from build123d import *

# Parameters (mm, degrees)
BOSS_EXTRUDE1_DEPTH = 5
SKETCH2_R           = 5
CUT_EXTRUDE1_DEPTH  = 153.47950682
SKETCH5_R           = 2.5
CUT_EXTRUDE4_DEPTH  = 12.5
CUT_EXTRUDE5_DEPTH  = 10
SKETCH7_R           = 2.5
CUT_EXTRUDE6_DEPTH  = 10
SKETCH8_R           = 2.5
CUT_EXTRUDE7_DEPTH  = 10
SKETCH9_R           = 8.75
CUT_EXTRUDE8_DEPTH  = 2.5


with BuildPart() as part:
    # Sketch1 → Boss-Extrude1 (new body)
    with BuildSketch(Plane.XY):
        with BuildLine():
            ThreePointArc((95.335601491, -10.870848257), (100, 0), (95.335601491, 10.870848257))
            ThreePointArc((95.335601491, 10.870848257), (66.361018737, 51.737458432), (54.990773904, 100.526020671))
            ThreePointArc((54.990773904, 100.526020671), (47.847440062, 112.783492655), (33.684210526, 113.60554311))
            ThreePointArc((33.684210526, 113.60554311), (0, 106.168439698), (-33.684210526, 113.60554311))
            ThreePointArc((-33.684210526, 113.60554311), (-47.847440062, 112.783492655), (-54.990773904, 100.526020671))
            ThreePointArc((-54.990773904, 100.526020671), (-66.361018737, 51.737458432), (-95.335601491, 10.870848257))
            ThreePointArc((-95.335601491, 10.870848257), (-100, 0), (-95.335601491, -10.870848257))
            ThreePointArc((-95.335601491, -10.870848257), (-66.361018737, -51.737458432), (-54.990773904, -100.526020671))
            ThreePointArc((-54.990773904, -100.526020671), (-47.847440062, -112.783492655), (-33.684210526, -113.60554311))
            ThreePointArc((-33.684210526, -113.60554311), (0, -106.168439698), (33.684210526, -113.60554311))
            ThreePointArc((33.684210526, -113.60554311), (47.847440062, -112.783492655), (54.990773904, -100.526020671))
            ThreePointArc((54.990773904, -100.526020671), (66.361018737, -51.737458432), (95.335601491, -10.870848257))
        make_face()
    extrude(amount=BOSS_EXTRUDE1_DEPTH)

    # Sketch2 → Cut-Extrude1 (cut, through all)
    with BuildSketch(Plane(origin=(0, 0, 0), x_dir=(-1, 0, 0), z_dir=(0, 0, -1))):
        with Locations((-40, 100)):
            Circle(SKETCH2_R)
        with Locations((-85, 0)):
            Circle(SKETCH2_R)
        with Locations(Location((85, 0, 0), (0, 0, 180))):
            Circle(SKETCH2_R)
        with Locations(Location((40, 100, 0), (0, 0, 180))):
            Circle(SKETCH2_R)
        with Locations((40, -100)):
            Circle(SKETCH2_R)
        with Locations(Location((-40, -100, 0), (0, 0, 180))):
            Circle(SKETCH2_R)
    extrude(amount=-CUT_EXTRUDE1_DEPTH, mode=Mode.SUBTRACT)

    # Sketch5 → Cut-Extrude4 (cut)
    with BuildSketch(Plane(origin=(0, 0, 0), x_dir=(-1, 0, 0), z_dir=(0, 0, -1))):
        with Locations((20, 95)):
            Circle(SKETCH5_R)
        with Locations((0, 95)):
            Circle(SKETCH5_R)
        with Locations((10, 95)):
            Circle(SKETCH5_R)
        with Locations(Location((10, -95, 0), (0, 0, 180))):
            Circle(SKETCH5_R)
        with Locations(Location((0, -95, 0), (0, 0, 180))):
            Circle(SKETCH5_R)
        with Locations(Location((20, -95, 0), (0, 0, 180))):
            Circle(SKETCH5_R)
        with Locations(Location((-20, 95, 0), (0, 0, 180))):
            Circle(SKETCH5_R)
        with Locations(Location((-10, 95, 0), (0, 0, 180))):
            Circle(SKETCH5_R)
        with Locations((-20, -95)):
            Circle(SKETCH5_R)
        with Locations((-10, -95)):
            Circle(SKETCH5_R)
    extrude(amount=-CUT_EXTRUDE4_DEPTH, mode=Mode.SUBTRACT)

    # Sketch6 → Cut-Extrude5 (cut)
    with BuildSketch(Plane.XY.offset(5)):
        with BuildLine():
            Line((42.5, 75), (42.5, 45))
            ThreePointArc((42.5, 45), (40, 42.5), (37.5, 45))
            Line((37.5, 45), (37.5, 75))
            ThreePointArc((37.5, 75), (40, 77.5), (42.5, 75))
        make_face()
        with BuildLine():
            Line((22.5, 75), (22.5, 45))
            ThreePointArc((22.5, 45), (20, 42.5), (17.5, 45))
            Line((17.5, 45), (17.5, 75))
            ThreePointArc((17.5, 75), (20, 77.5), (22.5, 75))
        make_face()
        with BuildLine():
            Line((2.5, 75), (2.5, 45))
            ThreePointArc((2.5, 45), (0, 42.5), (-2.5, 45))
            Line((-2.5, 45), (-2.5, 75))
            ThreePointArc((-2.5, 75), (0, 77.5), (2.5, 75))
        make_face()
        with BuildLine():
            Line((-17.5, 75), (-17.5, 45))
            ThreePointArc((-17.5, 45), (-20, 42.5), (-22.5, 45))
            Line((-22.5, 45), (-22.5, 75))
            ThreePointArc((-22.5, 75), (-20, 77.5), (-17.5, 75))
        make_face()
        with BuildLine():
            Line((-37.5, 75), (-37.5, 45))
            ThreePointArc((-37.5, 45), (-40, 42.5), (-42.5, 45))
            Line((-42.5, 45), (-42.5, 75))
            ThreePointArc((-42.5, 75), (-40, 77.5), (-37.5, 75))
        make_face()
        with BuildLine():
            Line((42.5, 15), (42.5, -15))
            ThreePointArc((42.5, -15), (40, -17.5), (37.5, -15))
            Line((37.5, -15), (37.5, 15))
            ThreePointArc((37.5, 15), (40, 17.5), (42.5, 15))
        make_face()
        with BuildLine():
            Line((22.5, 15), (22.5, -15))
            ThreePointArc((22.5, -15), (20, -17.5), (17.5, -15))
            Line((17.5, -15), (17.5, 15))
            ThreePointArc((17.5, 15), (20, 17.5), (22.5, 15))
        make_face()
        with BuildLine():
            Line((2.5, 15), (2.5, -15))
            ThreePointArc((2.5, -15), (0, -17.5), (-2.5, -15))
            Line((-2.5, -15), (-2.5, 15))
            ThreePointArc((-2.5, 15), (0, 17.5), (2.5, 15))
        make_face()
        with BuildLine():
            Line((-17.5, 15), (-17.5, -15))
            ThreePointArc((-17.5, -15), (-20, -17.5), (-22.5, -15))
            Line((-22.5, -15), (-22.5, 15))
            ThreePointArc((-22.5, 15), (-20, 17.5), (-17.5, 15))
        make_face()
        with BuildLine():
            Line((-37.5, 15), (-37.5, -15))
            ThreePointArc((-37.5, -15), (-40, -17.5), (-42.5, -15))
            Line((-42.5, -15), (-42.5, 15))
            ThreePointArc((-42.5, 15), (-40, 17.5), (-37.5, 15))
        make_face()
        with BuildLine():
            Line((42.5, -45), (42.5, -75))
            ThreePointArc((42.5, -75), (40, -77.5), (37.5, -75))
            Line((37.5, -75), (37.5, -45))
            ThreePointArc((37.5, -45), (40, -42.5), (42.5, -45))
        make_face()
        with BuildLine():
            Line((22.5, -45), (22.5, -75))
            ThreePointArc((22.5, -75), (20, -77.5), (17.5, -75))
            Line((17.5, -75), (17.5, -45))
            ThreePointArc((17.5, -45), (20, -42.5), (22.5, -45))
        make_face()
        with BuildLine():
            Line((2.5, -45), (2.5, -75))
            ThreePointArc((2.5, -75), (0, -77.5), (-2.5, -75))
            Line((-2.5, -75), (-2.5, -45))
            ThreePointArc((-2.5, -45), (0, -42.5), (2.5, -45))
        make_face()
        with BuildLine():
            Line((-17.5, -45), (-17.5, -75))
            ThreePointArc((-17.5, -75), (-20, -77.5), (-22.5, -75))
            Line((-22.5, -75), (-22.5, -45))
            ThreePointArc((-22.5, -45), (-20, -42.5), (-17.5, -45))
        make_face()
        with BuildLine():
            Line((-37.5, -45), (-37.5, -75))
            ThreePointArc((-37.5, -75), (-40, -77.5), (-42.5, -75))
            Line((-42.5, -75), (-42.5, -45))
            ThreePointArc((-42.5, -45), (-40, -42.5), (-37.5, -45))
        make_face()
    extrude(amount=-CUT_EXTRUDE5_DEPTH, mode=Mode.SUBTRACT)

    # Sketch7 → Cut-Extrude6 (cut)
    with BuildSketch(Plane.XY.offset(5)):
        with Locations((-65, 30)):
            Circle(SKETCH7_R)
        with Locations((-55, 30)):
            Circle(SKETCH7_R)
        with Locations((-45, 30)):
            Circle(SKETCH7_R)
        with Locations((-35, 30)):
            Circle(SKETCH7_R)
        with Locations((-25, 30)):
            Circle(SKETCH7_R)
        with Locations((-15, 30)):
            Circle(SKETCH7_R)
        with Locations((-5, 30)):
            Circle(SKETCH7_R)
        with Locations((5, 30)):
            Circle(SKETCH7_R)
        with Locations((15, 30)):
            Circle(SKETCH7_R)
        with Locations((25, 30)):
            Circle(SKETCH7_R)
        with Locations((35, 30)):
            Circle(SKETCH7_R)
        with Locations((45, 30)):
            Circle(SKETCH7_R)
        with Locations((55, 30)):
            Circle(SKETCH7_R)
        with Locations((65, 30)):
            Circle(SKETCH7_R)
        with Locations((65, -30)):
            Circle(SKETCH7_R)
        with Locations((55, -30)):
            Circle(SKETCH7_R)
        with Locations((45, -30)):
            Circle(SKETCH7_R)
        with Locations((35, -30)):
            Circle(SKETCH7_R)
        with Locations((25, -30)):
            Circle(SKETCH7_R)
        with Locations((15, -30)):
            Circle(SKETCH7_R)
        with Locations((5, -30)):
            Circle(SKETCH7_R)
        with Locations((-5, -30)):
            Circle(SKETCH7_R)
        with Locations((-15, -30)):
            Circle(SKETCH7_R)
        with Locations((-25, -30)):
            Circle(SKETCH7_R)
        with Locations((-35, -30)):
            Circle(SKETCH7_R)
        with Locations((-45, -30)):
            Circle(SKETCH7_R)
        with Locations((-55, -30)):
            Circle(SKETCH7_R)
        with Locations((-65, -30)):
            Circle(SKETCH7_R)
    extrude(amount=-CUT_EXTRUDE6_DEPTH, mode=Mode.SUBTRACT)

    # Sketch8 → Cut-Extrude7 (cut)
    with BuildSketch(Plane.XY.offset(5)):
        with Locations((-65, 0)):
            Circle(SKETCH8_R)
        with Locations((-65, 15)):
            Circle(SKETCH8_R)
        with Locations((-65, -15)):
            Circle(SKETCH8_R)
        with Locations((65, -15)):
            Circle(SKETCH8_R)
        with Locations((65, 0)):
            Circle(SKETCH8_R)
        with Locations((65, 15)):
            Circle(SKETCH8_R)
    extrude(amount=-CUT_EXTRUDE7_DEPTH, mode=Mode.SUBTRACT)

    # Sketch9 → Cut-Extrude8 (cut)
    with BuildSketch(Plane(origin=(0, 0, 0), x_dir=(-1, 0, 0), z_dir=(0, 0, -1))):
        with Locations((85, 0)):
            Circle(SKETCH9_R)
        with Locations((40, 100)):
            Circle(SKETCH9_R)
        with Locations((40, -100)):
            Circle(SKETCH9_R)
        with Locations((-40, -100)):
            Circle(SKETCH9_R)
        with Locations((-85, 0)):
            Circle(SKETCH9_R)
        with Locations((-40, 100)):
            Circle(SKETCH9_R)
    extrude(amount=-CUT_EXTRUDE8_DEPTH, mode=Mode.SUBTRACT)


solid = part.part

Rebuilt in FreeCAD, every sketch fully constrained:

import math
import FreeCAD as App
import Part
import Sketcher

V = App.Vector
Q = App.Units.Quantity

doc = App.newDocument("Part")
body = doc.addObject("PartDesign::Body", "Body")

sketch1 = doc.addObject("Sketcher::SketchObject", "Sketch")
body.addObject(sketch1)
sketch1.AttachmentSupport = (doc.XY_Plane, [""])
sketch1.MapMode = "FlatFace"
sketch1.addGeometry([
    Part.ArcOfCircle(Part.Circle(V(85, 0, 0), V(0, 0, 1), 15), math.radians(-46), math.radians(46)),
    Part.ArcOfCircle(Part.Circle(V(185, 105, 0), V(0, 0, 1), 130), math.radians(-178), math.radians(-134)),
    Part.ArcOfCircle(Part.Circle(V(40, 100, 0), V(0, 0, 1), 15), math.radians(2), math.radians(115)),
    Part.ArcOfCircle(Part.Circle(V(0, 186, 0), V(0, 0, 1), 80), math.radians(-115), math.radians(-65)),
    Part.ArcOfCircle(Part.Circle(V(-40, 100, 0), V(0, 0, 1), 15), math.radians(65), math.radians(178)),
    Part.ArcOfCircle(Part.Circle(V(-185, 105, 0), V(0, 0, 1), 130), math.radians(-46), math.radians(-2)),
    Part.ArcOfCircle(Part.Circle(V(-85, 0, 0), V(0, 0, 1), 15), math.radians(134), math.radians(226)),
    Part.ArcOfCircle(Part.Circle(V(-185, -105, 0), V(0, 0, 1), 130), math.radians(2), math.radians(46)),
    Part.ArcOfCircle(Part.Circle(V(-40, -100, 0), V(0, 0, 1), 15), math.radians(-178), math.radians(-65)),
    Part.ArcOfCircle(Part.Circle(V(0, -186, 0), V(0, 0, 1), 80), math.radians(65), math.radians(115)),
    Part.ArcOfCircle(Part.Circle(V(40, -100, 0), V(0, 0, 1), 15), math.radians(-115), math.radians(-2)),
    Part.ArcOfCircle(Part.Circle(V(185, -105, 0), V(0, 0, 1), 130), math.radians(134), math.radians(178)),
], False)
sketch1.addConstraint([
    Sketcher.Constraint("Tangent", 0, 2, 1, 2),
    Sketcher.Constraint("Tangent", 1, 1, 2, 1),
    Sketcher.Constraint("Tangent", 2, 2, 3, 2),
    Sketcher.Constraint("Tangent", 3, 1, 4, 1),
    Sketcher.Constraint("Tangent", 4, 2, 5, 2),
    Sketcher.Constraint("Tangent", 5, 1, 6, 1),
    Sketcher.Constraint("Tangent", 6, 2, 7, 2),
    Sketcher.Constraint("Tangent", 7, 1, 8, 1),
    Sketcher.Constraint("Tangent", 8, 2, 9, 2),
    Sketcher.Constraint("Tangent", 9, 1, 10, 1),
    Sketcher.Constraint("Tangent", 10, 2, 11, 2),
    Sketcher.Constraint("Tangent", 11, 1, 0, 1),
    Sketcher.Constraint("Equal", 0, 2),
    Sketcher.Constraint("Equal", 2, 4),
    Sketcher.Constraint("Equal", 1, 5),
    Sketcher.Constraint("Equal", 4, 6),
    Sketcher.Constraint("Equal", 5, 7),
    Sketcher.Constraint("Equal", 6, 8),
    Sketcher.Constraint("Equal", 3, 9),
    Sketcher.Constraint("Equal", 8, 10),
    Sketcher.Constraint("Equal", 7, 11),
    Sketcher.Constraint("Symmetric", 0, 3, 6, 3, -1, 1),
    Sketcher.Constraint("Symmetric", 2, 3, 8, 3, -1, 1),
    Sketcher.Constraint("Symmetric", 4, 3, 10, 3, -1, 1),
    Sketcher.Constraint("Symmetric", 2, 3, 4, 3, -2),
    Sketcher.Constraint("PointOnObject", 0, 3, -1),
    Sketcher.Constraint("Radius", 0, Q("15 mm")),
    Sketcher.Constraint("Radius", 1, Q("130 mm")),
    Sketcher.Constraint("Radius", 3, Q("80 mm")),
    Sketcher.Constraint("DistanceX", -1, 1, 0, 3, Q("85 mm")),
    Sketcher.Constraint("DistanceX", -1, 1, 2, 3, Q("40 mm")),
    Sketcher.Constraint("DistanceY", -1, 1, 2, 3, Q("100 mm")),
])
pad1 = doc.addObject("PartDesign::Pad", "Pad")
body.addObject(pad1)
pad1.Profile = sketch1
pad1.Length = 5

sketch2 = doc.addObject("Sketcher::SketchObject", "Sketch001")
body.addObject(sketch2)
sketch2.AttachmentSupport = (doc.XY_Plane, [""])
sketch2.MapMode = "FlatFace"
sketch2.addGeometry([
    Part.Circle(V(40, 100, 0), V(0, 0, 1), 5),
    Part.Circle(V(85, 0, 0), V(0, 0, 1), 5),
    Part.Circle(V(-85, 0, 0), V(0, 0, 1), 5),
    Part.Circle(V(-40, 100, 0), V(0, 0, 1), 5),
    Part.Circle(V(-40, -100, 0), V(0, 0, 1), 5),
    Part.Circle(V(40, -100, 0), V(0, 0, 1), 5),
], False)
sketch2.addConstraint([
    Sketcher.Constraint("Equal", 0, 1),
    Sketcher.Constraint("Equal", 1, 2),
    Sketcher.Constraint("Equal", 2, 3),
    Sketcher.Constraint("Equal", 3, 4),
    Sketcher.Constraint("Equal", 4, 5),
    Sketcher.Constraint("Symmetric", 1, 3, 2, 3, -1, 1),
    Sketcher.Constraint("Symmetric", 0, 3, 4, 3, -1, 1),
    Sketcher.Constraint("Symmetric", 3, 3, 5, 3, -1, 1),
    Sketcher.Constraint("Symmetric", 0, 3, 3, 3, -2),
    Sketcher.Constraint("PointOnObject", 1, 3, -1),
    Sketcher.Constraint("Diameter", 0, Q("10 mm")),
    Sketcher.Constraint("DistanceX", -1, 1, 0, 3, Q("40 mm")),
    Sketcher.Constraint("DistanceY", -1, 1, 0, 3, Q("100 mm")),
    Sketcher.Constraint("DistanceX", -1, 1, 1, 3, Q("85 mm")),
])
pocket1 = doc.addObject("PartDesign::Pocket", "Pocket")
body.addObject(pocket1)
pocket1.Profile = sketch2
pocket1.Type = "ThroughAll"
pocket1.Reversed = True

sketch3 = doc.addObject("Sketcher::SketchObject", "Sketch002")
body.addObject(sketch3)
sketch3.AttachmentSupport = (doc.XY_Plane, [""])
sketch3.MapMode = "FlatFace"
sketch3.addGeometry([
    Part.Circle(V(-20, 95, 0), V(0, 0, 1), 2.5),
    Part.Circle(V(0, 95, 0), V(0, 0, 1), 2.5),
    Part.Circle(V(-10, 95, 0), V(0, 0, 1), 2.5),
    Part.Circle(V(-10, -95, 0), V(0, 0, 1), 2.5),
    Part.Circle(V(0, -95, 0), V(0, 0, 1), 2.5),
    Part.Circle(V(-20, -95, 0), V(0, 0, 1), 2.5),
    Part.Circle(V(20, 95, 0), V(0, 0, 1), 2.5),
    Part.Circle(V(10, 95, 0), V(0, 0, 1), 2.5),
    Part.Circle(V(20, -95, 0), V(0, 0, 1), 2.5),
    Part.Circle(V(10, -95, 0), V(0, 0, 1), 2.5),
], False)
sketch3.addConstraint([
    Sketcher.Constraint("Equal", 0, 1),
    Sketcher.Constraint("Equal", 1, 2),
    Sketcher.Constraint("Equal", 2, 3),
    Sketcher.Constraint("Equal", 3, 4),
    Sketcher.Constraint("Equal", 4, 5),
    Sketcher.Constraint("Equal", 5, 6),
    Sketcher.Constraint("Equal", 6, 7),
    Sketcher.Constraint("Equal", 7, 8),
    Sketcher.Constraint("Equal", 8, 9),
    Sketcher.Constraint("Symmetric", 1, 3, 4, 3, -1, 1),
    Sketcher.Constraint("Symmetric", 5, 3, 6, 3, -1, 1),
    Sketcher.Constraint("Symmetric", 3, 3, 7, 3, -1, 1),
    Sketcher.Constraint("Symmetric", 0, 3, 8, 3, -1, 1),
    Sketcher.Constraint("Symmetric", 2, 3, 9, 3, -1, 1),
    Sketcher.Constraint("Symmetric", 0, 3, 6, 3, -2),
    Sketcher.Constraint("Symmetric", 2, 3, 7, 3, -2),
    Sketcher.Constraint("PointOnObject", 1, 3, -2),
    Sketcher.Constraint("Horizontal", 0, 3, 1, 3),
    Sketcher.Constraint("Horizontal", 1, 3, 2, 3),
    Sketcher.Constraint("Diameter", 0, Q("5 mm")),
    Sketcher.Constraint("DistanceX", 0, 3, -1, 1, Q("20 mm")),
    Sketcher.Constraint("DistanceY", -1, 1, 0, 3, Q("95 mm")),
    Sketcher.Constraint("DistanceX", 2, 3, -1, 1, Q("10 mm")),
])
pocket2 = doc.addObject("PartDesign::Pocket", "Pocket001")
body.addObject(pocket2)
pocket2.Profile = sketch3
pocket2.Length = 12.5
pocket2.Reversed = True

sketch4 = doc.addObject("Sketcher::SketchObject", "Sketch003")
body.addObject(sketch4)
sketch4.AttachmentSupport = (doc.XY_Plane, [""])
sketch4.MapMode = "FlatFace"
sketch4.AttachmentOffset = App.Placement(V(0, 0, 5), App.Rotation())
sketch4.addGeometry([
    Part.LineSegment(V(42.5, 45, 0), V(42.5, 75, 0)),
    Part.ArcOfCircle(Part.Circle(V(40, 75, 0), V(0, 0, 1), 2.5), math.radians(0), math.radians(180)),
    Part.LineSegment(V(37.5, 75, 0), V(37.5, 45, 0)),
    Part.ArcOfCircle(Part.Circle(V(40, 45, 0), V(0, 0, 1), 2.5), math.radians(180), math.radians(360)),
    Part.LineSegment(V(22.5, 45, 0), V(22.5, 75, 0)),
    Part.ArcOfCircle(Part.Circle(V(20, 75, 0), V(0, 0, 1), 2.5), math.radians(0), math.radians(180)),
    Part.LineSegment(V(17.5, 75, 0), V(17.5, 45, 0)),
    Part.ArcOfCircle(Part.Circle(V(20, 45, 0), V(0, 0, 1), 2.5), math.radians(180), math.radians(360)),
    Part.LineSegment(V(2.5, 45, 0), V(2.5, 75, 0)),
    Part.ArcOfCircle(Part.Circle(V(0, 75, 0), V(0, 0, 1), 2.5), math.radians(0), math.radians(180)),
    Part.LineSegment(V(-2.5, 75, 0), V(-2.5, 45, 0)),
    Part.ArcOfCircle(Part.Circle(V(0, 45, 0), V(0, 0, 1), 2.5), math.radians(180), math.radians(360)),
    Part.LineSegment(V(-17.5, 45, 0), V(-17.5, 75, 0)),
    Part.ArcOfCircle(Part.Circle(V(-20, 75, 0), V(0, 0, 1), 2.5), math.radians(0), math.radians(180)),
    Part.LineSegment(V(-22.5, 75, 0), V(-22.5, 45, 0)),
    Part.ArcOfCircle(Part.Circle(V(-20, 45, 0), V(0, 0, 1), 2.5), math.radians(180), math.radians(360)),
    Part.LineSegment(V(-37.5, 45, 0), V(-37.5, 75, 0)),
    Part.ArcOfCircle(Part.Circle(V(-40, 75, 0), V(0, 0, 1), 2.5), math.radians(0), math.radians(180)),
    Part.LineSegment(V(-42.5, 75, 0), V(-42.5, 45, 0)),
    Part.ArcOfCircle(Part.Circle(V(-40, 45, 0), V(0, 0, 1), 2.5), math.radians(180), math.radians(360)),
    Part.LineSegment(V(42.5, -15, 0), V(42.5, 15, 0)),
    Part.ArcOfCircle(Part.Circle(V(40, 15, 0), V(0, 0, 1), 2.5), math.radians(0), math.radians(180)),
    Part.LineSegment(V(37.5, 15, 0), V(37.5, -15, 0)),
    Part.ArcOfCircle(Part.Circle(V(40, -15, 0), V(0, 0, 1), 2.5), math.radians(180), math.radians(360)),
    Part.LineSegment(V(22.5, -15, 0), V(22.5, 15, 0)),
    Part.ArcOfCircle(Part.Circle(V(20, 15, 0), V(0, 0, 1), 2.5), math.radians(0), math.radians(180)),
    Part.LineSegment(V(17.5, 15, 0), V(17.5, -15, 0)),
    Part.ArcOfCircle(Part.Circle(V(20, -15, 0), V(0, 0, 1), 2.5), math.radians(180), math.radians(360)),
    Part.LineSegment(V(2.5, -15, 0), V(2.5, 15, 0)),
    Part.ArcOfCircle(Part.Circle(V(0, 15, 0), V(0, 0, 1), 2.5), math.radians(0), math.radians(180)),
    Part.LineSegment(V(-2.5, 15, 0), V(-2.5, -15, 0)),
    Part.ArcOfCircle(Part.Circle(V(0, -15, 0), V(0, 0, 1), 2.5), math.radians(180), math.radians(360)),
    Part.LineSegment(V(-17.5, -15, 0), V(-17.5, 15, 0)),
    Part.ArcOfCircle(Part.Circle(V(-20, 15, 0), V(0, 0, 1), 2.5), math.radians(0), math.radians(180)),
    Part.LineSegment(V(-22.5, 15, 0), V(-22.5, -15, 0)),
    Part.ArcOfCircle(Part.Circle(V(-20, -15, 0), V(0, 0, 1), 2.5), math.radians(180), math.radians(360)),
    Part.LineSegment(V(-37.5, -15, 0), V(-37.5, 15, 0)),
    Part.ArcOfCircle(Part.Circle(V(-40, 15, 0), V(0, 0, 1), 2.5), math.radians(0), math.radians(180)),
    Part.LineSegment(V(-42.5, 15, 0), V(-42.5, -15, 0)),
    Part.ArcOfCircle(Part.Circle(V(-40, -15, 0), V(0, 0, 1), 2.5), math.radians(180), math.radians(360)),
    Part.LineSegment(V(42.5, -75, 0), V(42.5, -45, 0)),
    Part.ArcOfCircle(Part.Circle(V(40, -45, 0), V(0, 0, 1), 2.5), math.radians(0), math.radians(180)),
    Part.LineSegment(V(37.5, -45, 0), V(37.5, -75, 0)),
    Part.ArcOfCircle(Part.Circle(V(40, -75, 0), V(0, 0, 1), 2.5), math.radians(180), math.radians(360)),
    Part.LineSegment(V(22.5, -75, 0), V(22.5, -45, 0)),
    Part.ArcOfCircle(Part.Circle(V(20, -45, 0), V(0, 0, 1), 2.5), math.radians(0), math.radians(180)),
    Part.LineSegment(V(17.5, -45, 0), V(17.5, -75, 0)),
    Part.ArcOfCircle(Part.Circle(V(20, -75, 0), V(0, 0, 1), 2.5), math.radians(180), math.radians(360)),
    Part.LineSegment(V(2.5, -75, 0), V(2.5, -45, 0)),
    Part.ArcOfCircle(Part.Circle(V(0, -45, 0), V(0, 0, 1), 2.5), math.radians(0), math.radians(180)),
    Part.LineSegment(V(-2.5, -45, 0), V(-2.5, -75, 0)),
    Part.ArcOfCircle(Part.Circle(V(0, -75, 0), V(0, 0, 1), 2.5), math.radians(180), math.radians(360)),
    Part.LineSegment(V(-17.5, -75, 0), V(-17.5, -45, 0)),
    Part.ArcOfCircle(Part.Circle(V(-20, -45, 0), V(0, 0, 1), 2.5), math.radians(0), math.radians(180)),
    Part.LineSegment(V(-22.5, -45, 0), V(-22.5, -75, 0)),
    Part.ArcOfCircle(Part.Circle(V(-20, -75, 0), V(0, 0, 1), 2.5), math.radians(180), math.radians(360)),
    Part.LineSegment(V(-37.5, -75, 0), V(-37.5, -45, 0)),
    Part.ArcOfCircle(Part.Circle(V(-40, -45, 0), V(0, 0, 1), 2.5), math.radians(0), math.radians(180)),
    Part.LineSegment(V(-42.5, -45, 0), V(-42.5, -75, 0)),
    Part.ArcOfCircle(Part.Circle(V(-40, -75, 0), V(0, 0, 1), 2.5), math.radians(180), math.radians(360)),
], False)
sketch4.addConstraint([
    Sketcher.Constraint("Tangent", 0, 2, 1, 1),
    Sketcher.Constraint("Tangent", 1, 2, 2, 1),
    Sketcher.Constraint("Tangent", 2, 2, 3, 1),
    Sketcher.Constraint("Tangent", 3, 2, 0, 1),
    Sketcher.Constraint("Tangent", 4, 2, 5, 1),
    Sketcher.Constraint("Tangent", 5, 2, 6, 1),
    Sketcher.Constraint("Tangent", 6, 2, 7, 1),
    Sketcher.Constraint("Tangent", 7, 2, 4, 1),
    Sketcher.Constraint("Tangent", 8, 2, 9, 1),
    Sketcher.Constraint("Tangent", 9, 2, 10, 1),
    Sketcher.Constraint("Tangent", 10, 2, 11, 1),
    Sketcher.Constraint("Tangent", 11, 2, 8, 1),
    Sketcher.Constraint("Tangent", 12, 2, 13, 1),
    Sketcher.Constraint("Tangent", 13, 2, 14, 1),
    Sketcher.Constraint("Tangent", 14, 2, 15, 1),
    Sketcher.Constraint("Tangent", 15, 2, 12, 1),
    Sketcher.Constraint("Tangent", 16, 2, 17, 1),
    Sketcher.Constraint("Tangent", 17, 2, 18, 1),
    Sketcher.Constraint("Tangent", 18, 2, 19, 1),
    Sketcher.Constraint("Tangent", 19, 2, 16, 1),
    Sketcher.Constraint("Tangent", 20, 2, 21, 1),
    Sketcher.Constraint("Tangent", 21, 2, 22, 1),
    Sketcher.Constraint("Tangent", 22, 2, 23, 1),
    Sketcher.Constraint("Tangent", 23, 2, 20, 1),
    Sketcher.Constraint("Tangent", 24, 2, 25, 1),
    Sketcher.Constraint("Tangent", 25, 2, 26, 1),
    Sketcher.Constraint("Tangent", 26, 2, 27, 1),
    Sketcher.Constraint("Tangent", 27, 2, 24, 1),
    Sketcher.Constraint("Tangent", 28, 2, 29, 1),
    Sketcher.Constraint("Tangent", 29, 2, 30, 1),
    Sketcher.Constraint("Tangent", 30, 2, 31, 1),
    Sketcher.Constraint("Tangent", 31, 2, 28, 1),
    Sketcher.Constraint("Tangent", 32, 2, 33, 1),
    Sketcher.Constraint("Tangent", 33, 2, 34, 1),
    Sketcher.Constraint("Tangent", 34, 2, 35, 1),
    Sketcher.Constraint("Tangent", 35, 2, 32, 1),
    Sketcher.Constraint("Tangent", 36, 2, 37, 1),
    Sketcher.Constraint("Tangent", 37, 2, 38, 1),
    Sketcher.Constraint("Tangent", 38, 2, 39, 1),
    Sketcher.Constraint("Tangent", 39, 2, 36, 1),
    Sketcher.Constraint("Tangent", 40, 2, 41, 1),
    Sketcher.Constraint("Tangent", 41, 2, 42, 1),
    Sketcher.Constraint("Tangent", 42, 2, 43, 1),
    Sketcher.Constraint("Tangent", 43, 2, 40, 1),
    Sketcher.Constraint("Tangent", 44, 2, 45, 1),
    Sketcher.Constraint("Tangent", 45, 2, 46, 1),
    Sketcher.Constraint("Tangent", 46, 2, 47, 1),
    Sketcher.Constraint("Tangent", 47, 2, 44, 1),
    Sketcher.Constraint("Tangent", 48, 2, 49, 1),
    Sketcher.Constraint("Tangent", 49, 2, 50, 1),
    Sketcher.Constraint("Tangent", 50, 2, 51, 1),
    Sketcher.Constraint("Tangent", 51, 2, 48, 1),
    Sketcher.Constraint("Tangent", 52, 2, 53, 1),
    Sketcher.Constraint("Tangent", 53, 2, 54, 1),
    Sketcher.Constraint("Tangent", 54, 2, 55, 1),
    Sketcher.Constraint("Tangent", 55, 2, 52, 1),
    Sketcher.Constraint("Tangent", 56, 2, 57, 1),
    Sketcher.Constraint("Tangent", 57, 2, 58, 1),
    Sketcher.Constraint("Tangent", 58, 2, 59, 1),
    Sketcher.Constraint("Tangent", 59, 2, 56, 1),
    Sketcher.Constraint("Vertical", 0),
    Sketcher.Constraint("Vertical", 2),
    Sketcher.Constraint("Vertical", 4),
    Sketcher.Constraint("Vertical", 6),
    Sketcher.Constraint("Vertical", 8),
    Sketcher.Constraint("Vertical", 10),
    Sketcher.Constraint("Vertical", 12),
    Sketcher.Constraint("Vertical", 14),
    Sketcher.Constraint("Vertical", 16),
    Sketcher.Constraint("Vertical", 18),
    Sketcher.Constraint("Vertical", 20),
    Sketcher.Constraint("Vertical", 22),
    Sketcher.Constraint("Vertical", 24),
    Sketcher.Constraint("Vertical", 26),
    Sketcher.Constraint("Vertical", 28),
    Sketcher.Constraint("Vertical", 30),
    Sketcher.Constraint("Vertical", 32),
    Sketcher.Constraint("Vertical", 34),
    Sketcher.Constraint("Vertical", 36),
    Sketcher.Constraint("Vertical", 38),
    Sketcher.Constraint("Vertical", 40),
    Sketcher.Constraint("Vertical", 42),
    Sketcher.Constraint("Vertical", 44),
    Sketcher.Constraint("Vertical", 46),
    Sketcher.Constraint("Vertical", 48),
    Sketcher.Constraint("Vertical", 50),
    Sketcher.Constraint("Vertical", 52),
    Sketcher.Constraint("Vertical", 54),
    Sketcher.Constraint("Vertical", 56),
    Sketcher.Constraint("Vertical", 58),
    Sketcher.Constraint("Equal", 3, 5),
    Sketcher.Constraint("Equal", 7, 9),
    Sketcher.Constraint("Equal", 11, 13),
    Sketcher.Constraint("Equal", 15, 17),
    Sketcher.Constraint("Equal", 19, 21),
    Sketcher.Constraint("Equal", 23, 25),
    Sketcher.Constraint("Equal", 27, 29),
    Sketcher.Constraint("Equal", 31, 33),
    Sketcher.Constraint("Equal", 35, 37),
    Sketcher.Constraint("Equal", 39, 41),
    Sketcher.Constraint("Equal", 43, 45),
    Sketcher.Constraint("Equal", 47, 49),
    Sketcher.Constraint("Equal", 51, 53),
    Sketcher.Constraint("Equal", 55, 57),
    Sketcher.Constraint("Symmetric", 29, 3, 31, 3, -1, 1),
    Sketcher.Constraint("Symmetric", 27, 3, 33, 3, -1, 1),
    Sketcher.Constraint("Symmetric", 23, 3, 37, 3, -1, 1),
    Sketcher.Constraint("Symmetric", 19, 3, 41, 3, -1, 1),
    Sketcher.Constraint("Symmetric", 15, 3, 45, 3, -1, 1),
    Sketcher.Constraint("Symmetric", 11, 3, 49, 3, -1, 1),
    Sketcher.Constraint("Symmetric", 7, 3, 53, 3, -1, 1),
    Sketcher.Constraint("Symmetric", 3, 3, 57, 3, -1, 1),
    Sketcher.Constraint("Symmetric", 5, 3, 13, 3, -2),
    Sketcher.Constraint("Symmetric", 1, 3, 17, 3, -2),
    Sketcher.Constraint("Symmetric", 9, 3, 51, 3, -1),
    Sketcher.Constraint("Horizontal", 1, 3, 5, 3),
    Sketcher.Constraint("Horizontal", 3, 3, 7, 3),
    Sketcher.Constraint("Horizontal", 5, 3, 9, 3),
    Sketcher.Constraint("Horizontal", 7, 3, 11, 3),
    Sketcher.Constraint("Horizontal", 11, 3, 15, 3),
    Sketcher.Constraint("Horizontal", 15, 3, 19, 3),
    Sketcher.Constraint("Horizontal", 21, 3, 25, 3),
    Sketcher.Constraint("Horizontal", 23, 3, 27, 3),
    Sketcher.Constraint("Horizontal", 25, 3, 29, 3),
    Sketcher.Constraint("Horizontal", 27, 3, 31, 3),
    Sketcher.Constraint("Horizontal", 31, 3, 35, 3),
    Sketcher.Constraint("Horizontal", 35, 3, 39, 3),
    Sketcher.Constraint("Horizontal", 43, 3, 47, 3),
    Sketcher.Constraint("Horizontal", 47, 3, 51, 3),
    Sketcher.Constraint("Horizontal", 51, 3, 55, 3),
    Sketcher.Constraint("Horizontal", 55, 3, 59, 3),
    Sketcher.Constraint("Vertical", 3, 3, 21, 3),
    Sketcher.Constraint("Vertical", 7, 3, 25, 3),
    Sketcher.Constraint("Equal", 18, 20),
    Sketcher.Constraint("Radius", 1, Q("2.5 mm")),
    Sketcher.Constraint("DistanceY", 0, 1, 0, 2, Q("30 mm")),
    Sketcher.Constraint("DistanceX", -1, 1, 1, 3, Q("40 mm")),
    Sketcher.Constraint("DistanceY", -1, 1, 1, 3, Q("75 mm")),
    Sketcher.Constraint("DistanceX", -1, 1, 5, 3, Q("20 mm")),
])
pocket3 = doc.addObject("PartDesign::Pocket", "Pocket002")
body.addObject(pocket3)
pocket3.Profile = sketch4
pocket3.Length = 10

sketch5 = doc.addObject("Sketcher::SketchObject", "Sketch004")
body.addObject(sketch5)
sketch5.AttachmentSupport = (doc.XY_Plane, [""])
sketch5.MapMode = "FlatFace"
sketch5.AttachmentOffset = App.Placement(V(0, 0, 5), App.Rotation())
sketch5.addGeometry([
    Part.Circle(V(-65, 30, 0), V(0, 0, 1), 2.5),
    Part.Circle(V(-55, 30, 0), V(0, 0, 1), 2.5),
    Part.Circle(V(-45, 30, 0), V(0, 0, 1), 2.5),
    Part.Circle(V(-35, 30, 0), V(0, 0, 1), 2.5),
    Part.Circle(V(-25, 30, 0), V(0, 0, 1), 2.5),
    Part.Circle(V(-15, 30, 0), V(0, 0, 1), 2.5),
    Part.Circle(V(-5, 30, 0), V(0, 0, 1), 2.5),
    Part.Circle(V(5, 30, 0), V(0, 0, 1), 2.5),
    Part.Circle(V(15, 30, 0), V(0, 0, 1), 2.5),
    Part.Circle(V(25, 30, 0), V(0, 0, 1), 2.5),
    Part.Circle(V(35, 30, 0), V(0, 0, 1), 2.5),
    Part.Circle(V(45, 30, 0), V(0, 0, 1), 2.5),
    Part.Circle(V(55, 30, 0), V(0, 0, 1), 2.5),
    Part.Circle(V(65, 30, 0), V(0, 0, 1), 2.5),
    Part.Circle(V(65, -30, 0), V(0, 0, 1), 2.5),
    Part.Circle(V(55, -30, 0), V(0, 0, 1), 2.5),
    Part.Circle(V(45, -30, 0), V(0, 0, 1), 2.5),
    Part.Circle(V(35, -30, 0), V(0, 0, 1), 2.5),
    Part.Circle(V(25, -30, 0), V(0, 0, 1), 2.5),
    Part.Circle(V(15, -30, 0), V(0, 0, 1), 2.5),
    Part.Circle(V(5, -30, 0), V(0, 0, 1), 2.5),
    Part.Circle(V(-5, -30, 0), V(0, 0, 1), 2.5),
    Part.Circle(V(-15, -30, 0), V(0, 0, 1), 2.5),
    Part.Circle(V(-25, -30, 0), V(0, 0, 1), 2.5),
    Part.Circle(V(-35, -30, 0), V(0, 0, 1), 2.5),
    Part.Circle(V(-45, -30, 0), V(0, 0, 1), 2.5),
    Part.Circle(V(-55, -30, 0), V(0, 0, 1), 2.5),
    Part.Circle(V(-65, -30, 0), V(0, 0, 1), 2.5),
], False)
sketch5.addConstraint([
    Sketcher.Constraint("Equal", 0, 1),
    Sketcher.Constraint("Equal", 1, 2),
    Sketcher.Constraint("Equal", 2, 3),
    Sketcher.Constraint("Equal", 3, 4),
    Sketcher.Constraint("Equal", 4, 5),
    Sketcher.Constraint("Equal", 5, 6),
    Sketcher.Constraint("Equal", 6, 7),
    Sketcher.Constraint("Equal", 7, 8),
    Sketcher.Constraint("Equal", 8, 9),
    Sketcher.Constraint("Equal", 9, 10),
    Sketcher.Constraint("Equal", 10, 11),
    Sketcher.Constraint("Equal", 11, 12),
    Sketcher.Constraint("Equal", 12, 13),
    Sketcher.Constraint("Equal", 13, 14),
    Sketcher.Constraint("Equal", 14, 15),
    Sketcher.Constraint("Equal", 15, 16),
    Sketcher.Constraint("Equal", 16, 17),
    Sketcher.Constraint("Equal", 17, 18),
    Sketcher.Constraint("Equal", 18, 19),
    Sketcher.Constraint("Equal", 19, 20),
    Sketcher.Constraint("Equal", 20, 21),
    Sketcher.Constraint("Equal", 21, 22),
    Sketcher.Constraint("Equal", 22, 23),
    Sketcher.Constraint("Equal", 23, 24),
    Sketcher.Constraint("Equal", 24, 25),
    Sketcher.Constraint("Equal", 25, 26),
    Sketcher.Constraint("Equal", 26, 27),
    Sketcher.Constraint("Symmetric", 0, 3, 14, 3, -1, 1),
    Sketcher.Constraint("Symmetric", 1, 3, 15, 3, -1, 1),
    Sketcher.Constraint("Symmetric", 2, 3, 16, 3, -1, 1),
    Sketcher.Constraint("Symmetric", 3, 3, 17, 3, -1, 1),
    Sketcher.Constraint("Symmetric", 4, 3, 18, 3, -1, 1),
    Sketcher.Constraint("Symmetric", 5, 3, 19, 3, -1, 1),
    Sketcher.Constraint("Symmetric", 6, 3, 20, 3, -1, 1),
    Sketcher.Constraint("Symmetric", 7, 3, 21, 3, -1, 1),
    Sketcher.Constraint("Symmetric", 8, 3, 22, 3, -1, 1),
    Sketcher.Constraint("Symmetric", 9, 3, 23, 3, -1, 1),
    Sketcher.Constraint("Symmetric", 10, 3, 24, 3, -1, 1),
    Sketcher.Constraint("Symmetric", 11, 3, 25, 3, -1, 1),
    Sketcher.Constraint("Symmetric", 12, 3, 26, 3, -1, 1),
    Sketcher.Constraint("Symmetric", 13, 3, 27, 3, -1, 1),
    Sketcher.Constraint("Symmetric", 6, 3, 7, 3, -2),
    Sketcher.Constraint("Symmetric", 5, 3, 8, 3, -2),
    Sketcher.Constraint("Symmetric", 4, 3, 9, 3, -2),
    Sketcher.Constraint("Symmetric", 3, 3, 10, 3, -2),
    Sketcher.Constraint("Symmetric", 2, 3, 11, 3, -2),
    Sketcher.Constraint("Symmetric", 1, 3, 12, 3, -2),
    Sketcher.Constraint("Symmetric", 0, 3, 13, 3, -2),
    Sketcher.Constraint("Horizontal", 0, 3, 1, 3),
    Sketcher.Constraint("Horizontal", 1, 3, 2, 3),
    Sketcher.Constraint("Horizontal", 2, 3, 3, 3),
    Sketcher.Constraint("Horizontal", 3, 3, 4, 3),
    Sketcher.Constraint("Horizontal", 4, 3, 5, 3),
    Sketcher.Constraint("Horizontal", 5, 3, 6, 3),
    Sketcher.Constraint("Diameter", 0, Q("5 mm")),
    Sketcher.Constraint("DistanceX", 0, 3, -1, 1, Q("65 mm")),
    Sketcher.Constraint("DistanceY", -1, 1, 0, 3, Q("30 mm")),
    Sketcher.Constraint("DistanceX", 1, 3, -1, 1, Q("55 mm")),
    Sketcher.Constraint("DistanceX", 2, 3, -1, 1, Q("45 mm")),
    Sketcher.Constraint("DistanceX", 3, 3, -1, 1, Q("35 mm")),
    Sketcher.Constraint("DistanceX", 4, 3, -1, 1, Q("25 mm")),
    Sketcher.Constraint("DistanceX", 5, 3, -1, 1, Q("15 mm")),
    Sketcher.Constraint("DistanceX", 6, 3, -1, 1, Q("5 mm")),
])
pocket4 = doc.addObject("PartDesign::Pocket", "Pocket003")
body.addObject(pocket4)
pocket4.Profile = sketch5
pocket4.Length = 10

sketch6 = doc.addObject("Sketcher::SketchObject", "Sketch005")
body.addObject(sketch6)
sketch6.AttachmentSupport = (doc.XY_Plane, [""])
sketch6.MapMode = "FlatFace"
sketch6.AttachmentOffset = App.Placement(V(0, 0, 5), App.Rotation())
sketch6.addGeometry([
    Part.Circle(V(-65, 0, 0), V(0, 0, 1), 2.5),
    Part.Circle(V(-65, 15, 0), V(0, 0, 1), 2.5),
    Part.Circle(V(-65, -15, 0), V(0, 0, 1), 2.5),
    Part.Circle(V(65, -15, 0), V(0, 0, 1), 2.5),
    Part.Circle(V(65, 0, 0), V(0, 0, 1), 2.5),
    Part.Circle(V(65, 15, 0), V(0, 0, 1), 2.5),
], False)
sketch6.addConstraint([
    Sketcher.Constraint("Equal", 0, 1),
    Sketcher.Constraint("Equal", 1, 2),
    Sketcher.Constraint("Equal", 2, 3),
    Sketcher.Constraint("Equal", 3, 4),
    Sketcher.Constraint("Equal", 4, 5),
    Sketcher.Constraint("Symmetric", 1, 3, 3, 3, -1, 1),
    Sketcher.Constraint("Symmetric", 0, 3, 4, 3, -1, 1),
    Sketcher.Constraint("Symmetric", 2, 3, 5, 3, -1, 1),
    Sketcher.Constraint("Symmetric", 2, 3, 3, 3, -2),
    Sketcher.Constraint("PointOnObject", 0, 3, -1),
    Sketcher.Constraint("Vertical", 0, 3, 1, 3),
    Sketcher.Constraint("Diameter", 0, Q("5 mm")),
    Sketcher.Constraint("DistanceX", 0, 3, -1, 1, Q("65 mm")),
    Sketcher.Constraint("DistanceY", -1, 1, 1, 3, Q("15 mm")),
])
pocket5 = doc.addObject("PartDesign::Pocket", "Pocket004")
body.addObject(pocket5)
pocket5.Profile = sketch6
pocket5.Length = 10

sketch7 = doc.addObject("Sketcher::SketchObject", "Sketch006")
body.addObject(sketch7)
sketch7.AttachmentSupport = (doc.XY_Plane, [""])
sketch7.MapMode = "FlatFace"
sketch7.addGeometry([
    Part.Circle(V(-85, 0, 0), V(0, 0, 1), 9),
    Part.Circle(V(-40, 100, 0), V(0, 0, 1), 9),
    Part.Circle(V(-40, -100, 0), V(0, 0, 1), 9),
    Part.Circle(V(40, -100, 0), V(0, 0, 1), 9),
    Part.Circle(V(85, 0, 0), V(0, 0, 1), 9),
    Part.Circle(V(40, 100, 0), V(0, 0, 1), 9),
], False)
sketch7.addConstraint([
    Sketcher.Constraint("Equal", 0, 1),
    Sketcher.Constraint("Equal", 1, 2),
    Sketcher.Constraint("Equal", 2, 3),
    Sketcher.Constraint("Equal", 3, 4),
    Sketcher.Constraint("Equal", 4, 5),
    Sketcher.Constraint("Symmetric", 1, 3, 3, 3, -1, 1),
    Sketcher.Constraint("Symmetric", 0, 3, 4, 3, -1, 1),
    Sketcher.Constraint("Symmetric", 2, 3, 5, 3, -1, 1),
    Sketcher.Constraint("Symmetric", 2, 3, 3, 3, -2),
    Sketcher.Constraint("PointOnObject", 0, 3, -1),
    Sketcher.Constraint("Diameter", 0, Q("17.5 mm")),
    Sketcher.Constraint("DistanceX", 0, 3, -1, 1, Q("85 mm")),
    Sketcher.Constraint("DistanceX", 1, 3, -1, 1, Q("40 mm")),
    Sketcher.Constraint("DistanceY", -1, 1, 1, 3, Q("100 mm")),
])
pocket6 = doc.addObject("PartDesign::Pocket", "Pocket005")
body.addObject(pocket6)
pocket6.Profile = sketch7
pocket6.Length = 2.5
pocket6.Reversed = True

doc.recompute()
